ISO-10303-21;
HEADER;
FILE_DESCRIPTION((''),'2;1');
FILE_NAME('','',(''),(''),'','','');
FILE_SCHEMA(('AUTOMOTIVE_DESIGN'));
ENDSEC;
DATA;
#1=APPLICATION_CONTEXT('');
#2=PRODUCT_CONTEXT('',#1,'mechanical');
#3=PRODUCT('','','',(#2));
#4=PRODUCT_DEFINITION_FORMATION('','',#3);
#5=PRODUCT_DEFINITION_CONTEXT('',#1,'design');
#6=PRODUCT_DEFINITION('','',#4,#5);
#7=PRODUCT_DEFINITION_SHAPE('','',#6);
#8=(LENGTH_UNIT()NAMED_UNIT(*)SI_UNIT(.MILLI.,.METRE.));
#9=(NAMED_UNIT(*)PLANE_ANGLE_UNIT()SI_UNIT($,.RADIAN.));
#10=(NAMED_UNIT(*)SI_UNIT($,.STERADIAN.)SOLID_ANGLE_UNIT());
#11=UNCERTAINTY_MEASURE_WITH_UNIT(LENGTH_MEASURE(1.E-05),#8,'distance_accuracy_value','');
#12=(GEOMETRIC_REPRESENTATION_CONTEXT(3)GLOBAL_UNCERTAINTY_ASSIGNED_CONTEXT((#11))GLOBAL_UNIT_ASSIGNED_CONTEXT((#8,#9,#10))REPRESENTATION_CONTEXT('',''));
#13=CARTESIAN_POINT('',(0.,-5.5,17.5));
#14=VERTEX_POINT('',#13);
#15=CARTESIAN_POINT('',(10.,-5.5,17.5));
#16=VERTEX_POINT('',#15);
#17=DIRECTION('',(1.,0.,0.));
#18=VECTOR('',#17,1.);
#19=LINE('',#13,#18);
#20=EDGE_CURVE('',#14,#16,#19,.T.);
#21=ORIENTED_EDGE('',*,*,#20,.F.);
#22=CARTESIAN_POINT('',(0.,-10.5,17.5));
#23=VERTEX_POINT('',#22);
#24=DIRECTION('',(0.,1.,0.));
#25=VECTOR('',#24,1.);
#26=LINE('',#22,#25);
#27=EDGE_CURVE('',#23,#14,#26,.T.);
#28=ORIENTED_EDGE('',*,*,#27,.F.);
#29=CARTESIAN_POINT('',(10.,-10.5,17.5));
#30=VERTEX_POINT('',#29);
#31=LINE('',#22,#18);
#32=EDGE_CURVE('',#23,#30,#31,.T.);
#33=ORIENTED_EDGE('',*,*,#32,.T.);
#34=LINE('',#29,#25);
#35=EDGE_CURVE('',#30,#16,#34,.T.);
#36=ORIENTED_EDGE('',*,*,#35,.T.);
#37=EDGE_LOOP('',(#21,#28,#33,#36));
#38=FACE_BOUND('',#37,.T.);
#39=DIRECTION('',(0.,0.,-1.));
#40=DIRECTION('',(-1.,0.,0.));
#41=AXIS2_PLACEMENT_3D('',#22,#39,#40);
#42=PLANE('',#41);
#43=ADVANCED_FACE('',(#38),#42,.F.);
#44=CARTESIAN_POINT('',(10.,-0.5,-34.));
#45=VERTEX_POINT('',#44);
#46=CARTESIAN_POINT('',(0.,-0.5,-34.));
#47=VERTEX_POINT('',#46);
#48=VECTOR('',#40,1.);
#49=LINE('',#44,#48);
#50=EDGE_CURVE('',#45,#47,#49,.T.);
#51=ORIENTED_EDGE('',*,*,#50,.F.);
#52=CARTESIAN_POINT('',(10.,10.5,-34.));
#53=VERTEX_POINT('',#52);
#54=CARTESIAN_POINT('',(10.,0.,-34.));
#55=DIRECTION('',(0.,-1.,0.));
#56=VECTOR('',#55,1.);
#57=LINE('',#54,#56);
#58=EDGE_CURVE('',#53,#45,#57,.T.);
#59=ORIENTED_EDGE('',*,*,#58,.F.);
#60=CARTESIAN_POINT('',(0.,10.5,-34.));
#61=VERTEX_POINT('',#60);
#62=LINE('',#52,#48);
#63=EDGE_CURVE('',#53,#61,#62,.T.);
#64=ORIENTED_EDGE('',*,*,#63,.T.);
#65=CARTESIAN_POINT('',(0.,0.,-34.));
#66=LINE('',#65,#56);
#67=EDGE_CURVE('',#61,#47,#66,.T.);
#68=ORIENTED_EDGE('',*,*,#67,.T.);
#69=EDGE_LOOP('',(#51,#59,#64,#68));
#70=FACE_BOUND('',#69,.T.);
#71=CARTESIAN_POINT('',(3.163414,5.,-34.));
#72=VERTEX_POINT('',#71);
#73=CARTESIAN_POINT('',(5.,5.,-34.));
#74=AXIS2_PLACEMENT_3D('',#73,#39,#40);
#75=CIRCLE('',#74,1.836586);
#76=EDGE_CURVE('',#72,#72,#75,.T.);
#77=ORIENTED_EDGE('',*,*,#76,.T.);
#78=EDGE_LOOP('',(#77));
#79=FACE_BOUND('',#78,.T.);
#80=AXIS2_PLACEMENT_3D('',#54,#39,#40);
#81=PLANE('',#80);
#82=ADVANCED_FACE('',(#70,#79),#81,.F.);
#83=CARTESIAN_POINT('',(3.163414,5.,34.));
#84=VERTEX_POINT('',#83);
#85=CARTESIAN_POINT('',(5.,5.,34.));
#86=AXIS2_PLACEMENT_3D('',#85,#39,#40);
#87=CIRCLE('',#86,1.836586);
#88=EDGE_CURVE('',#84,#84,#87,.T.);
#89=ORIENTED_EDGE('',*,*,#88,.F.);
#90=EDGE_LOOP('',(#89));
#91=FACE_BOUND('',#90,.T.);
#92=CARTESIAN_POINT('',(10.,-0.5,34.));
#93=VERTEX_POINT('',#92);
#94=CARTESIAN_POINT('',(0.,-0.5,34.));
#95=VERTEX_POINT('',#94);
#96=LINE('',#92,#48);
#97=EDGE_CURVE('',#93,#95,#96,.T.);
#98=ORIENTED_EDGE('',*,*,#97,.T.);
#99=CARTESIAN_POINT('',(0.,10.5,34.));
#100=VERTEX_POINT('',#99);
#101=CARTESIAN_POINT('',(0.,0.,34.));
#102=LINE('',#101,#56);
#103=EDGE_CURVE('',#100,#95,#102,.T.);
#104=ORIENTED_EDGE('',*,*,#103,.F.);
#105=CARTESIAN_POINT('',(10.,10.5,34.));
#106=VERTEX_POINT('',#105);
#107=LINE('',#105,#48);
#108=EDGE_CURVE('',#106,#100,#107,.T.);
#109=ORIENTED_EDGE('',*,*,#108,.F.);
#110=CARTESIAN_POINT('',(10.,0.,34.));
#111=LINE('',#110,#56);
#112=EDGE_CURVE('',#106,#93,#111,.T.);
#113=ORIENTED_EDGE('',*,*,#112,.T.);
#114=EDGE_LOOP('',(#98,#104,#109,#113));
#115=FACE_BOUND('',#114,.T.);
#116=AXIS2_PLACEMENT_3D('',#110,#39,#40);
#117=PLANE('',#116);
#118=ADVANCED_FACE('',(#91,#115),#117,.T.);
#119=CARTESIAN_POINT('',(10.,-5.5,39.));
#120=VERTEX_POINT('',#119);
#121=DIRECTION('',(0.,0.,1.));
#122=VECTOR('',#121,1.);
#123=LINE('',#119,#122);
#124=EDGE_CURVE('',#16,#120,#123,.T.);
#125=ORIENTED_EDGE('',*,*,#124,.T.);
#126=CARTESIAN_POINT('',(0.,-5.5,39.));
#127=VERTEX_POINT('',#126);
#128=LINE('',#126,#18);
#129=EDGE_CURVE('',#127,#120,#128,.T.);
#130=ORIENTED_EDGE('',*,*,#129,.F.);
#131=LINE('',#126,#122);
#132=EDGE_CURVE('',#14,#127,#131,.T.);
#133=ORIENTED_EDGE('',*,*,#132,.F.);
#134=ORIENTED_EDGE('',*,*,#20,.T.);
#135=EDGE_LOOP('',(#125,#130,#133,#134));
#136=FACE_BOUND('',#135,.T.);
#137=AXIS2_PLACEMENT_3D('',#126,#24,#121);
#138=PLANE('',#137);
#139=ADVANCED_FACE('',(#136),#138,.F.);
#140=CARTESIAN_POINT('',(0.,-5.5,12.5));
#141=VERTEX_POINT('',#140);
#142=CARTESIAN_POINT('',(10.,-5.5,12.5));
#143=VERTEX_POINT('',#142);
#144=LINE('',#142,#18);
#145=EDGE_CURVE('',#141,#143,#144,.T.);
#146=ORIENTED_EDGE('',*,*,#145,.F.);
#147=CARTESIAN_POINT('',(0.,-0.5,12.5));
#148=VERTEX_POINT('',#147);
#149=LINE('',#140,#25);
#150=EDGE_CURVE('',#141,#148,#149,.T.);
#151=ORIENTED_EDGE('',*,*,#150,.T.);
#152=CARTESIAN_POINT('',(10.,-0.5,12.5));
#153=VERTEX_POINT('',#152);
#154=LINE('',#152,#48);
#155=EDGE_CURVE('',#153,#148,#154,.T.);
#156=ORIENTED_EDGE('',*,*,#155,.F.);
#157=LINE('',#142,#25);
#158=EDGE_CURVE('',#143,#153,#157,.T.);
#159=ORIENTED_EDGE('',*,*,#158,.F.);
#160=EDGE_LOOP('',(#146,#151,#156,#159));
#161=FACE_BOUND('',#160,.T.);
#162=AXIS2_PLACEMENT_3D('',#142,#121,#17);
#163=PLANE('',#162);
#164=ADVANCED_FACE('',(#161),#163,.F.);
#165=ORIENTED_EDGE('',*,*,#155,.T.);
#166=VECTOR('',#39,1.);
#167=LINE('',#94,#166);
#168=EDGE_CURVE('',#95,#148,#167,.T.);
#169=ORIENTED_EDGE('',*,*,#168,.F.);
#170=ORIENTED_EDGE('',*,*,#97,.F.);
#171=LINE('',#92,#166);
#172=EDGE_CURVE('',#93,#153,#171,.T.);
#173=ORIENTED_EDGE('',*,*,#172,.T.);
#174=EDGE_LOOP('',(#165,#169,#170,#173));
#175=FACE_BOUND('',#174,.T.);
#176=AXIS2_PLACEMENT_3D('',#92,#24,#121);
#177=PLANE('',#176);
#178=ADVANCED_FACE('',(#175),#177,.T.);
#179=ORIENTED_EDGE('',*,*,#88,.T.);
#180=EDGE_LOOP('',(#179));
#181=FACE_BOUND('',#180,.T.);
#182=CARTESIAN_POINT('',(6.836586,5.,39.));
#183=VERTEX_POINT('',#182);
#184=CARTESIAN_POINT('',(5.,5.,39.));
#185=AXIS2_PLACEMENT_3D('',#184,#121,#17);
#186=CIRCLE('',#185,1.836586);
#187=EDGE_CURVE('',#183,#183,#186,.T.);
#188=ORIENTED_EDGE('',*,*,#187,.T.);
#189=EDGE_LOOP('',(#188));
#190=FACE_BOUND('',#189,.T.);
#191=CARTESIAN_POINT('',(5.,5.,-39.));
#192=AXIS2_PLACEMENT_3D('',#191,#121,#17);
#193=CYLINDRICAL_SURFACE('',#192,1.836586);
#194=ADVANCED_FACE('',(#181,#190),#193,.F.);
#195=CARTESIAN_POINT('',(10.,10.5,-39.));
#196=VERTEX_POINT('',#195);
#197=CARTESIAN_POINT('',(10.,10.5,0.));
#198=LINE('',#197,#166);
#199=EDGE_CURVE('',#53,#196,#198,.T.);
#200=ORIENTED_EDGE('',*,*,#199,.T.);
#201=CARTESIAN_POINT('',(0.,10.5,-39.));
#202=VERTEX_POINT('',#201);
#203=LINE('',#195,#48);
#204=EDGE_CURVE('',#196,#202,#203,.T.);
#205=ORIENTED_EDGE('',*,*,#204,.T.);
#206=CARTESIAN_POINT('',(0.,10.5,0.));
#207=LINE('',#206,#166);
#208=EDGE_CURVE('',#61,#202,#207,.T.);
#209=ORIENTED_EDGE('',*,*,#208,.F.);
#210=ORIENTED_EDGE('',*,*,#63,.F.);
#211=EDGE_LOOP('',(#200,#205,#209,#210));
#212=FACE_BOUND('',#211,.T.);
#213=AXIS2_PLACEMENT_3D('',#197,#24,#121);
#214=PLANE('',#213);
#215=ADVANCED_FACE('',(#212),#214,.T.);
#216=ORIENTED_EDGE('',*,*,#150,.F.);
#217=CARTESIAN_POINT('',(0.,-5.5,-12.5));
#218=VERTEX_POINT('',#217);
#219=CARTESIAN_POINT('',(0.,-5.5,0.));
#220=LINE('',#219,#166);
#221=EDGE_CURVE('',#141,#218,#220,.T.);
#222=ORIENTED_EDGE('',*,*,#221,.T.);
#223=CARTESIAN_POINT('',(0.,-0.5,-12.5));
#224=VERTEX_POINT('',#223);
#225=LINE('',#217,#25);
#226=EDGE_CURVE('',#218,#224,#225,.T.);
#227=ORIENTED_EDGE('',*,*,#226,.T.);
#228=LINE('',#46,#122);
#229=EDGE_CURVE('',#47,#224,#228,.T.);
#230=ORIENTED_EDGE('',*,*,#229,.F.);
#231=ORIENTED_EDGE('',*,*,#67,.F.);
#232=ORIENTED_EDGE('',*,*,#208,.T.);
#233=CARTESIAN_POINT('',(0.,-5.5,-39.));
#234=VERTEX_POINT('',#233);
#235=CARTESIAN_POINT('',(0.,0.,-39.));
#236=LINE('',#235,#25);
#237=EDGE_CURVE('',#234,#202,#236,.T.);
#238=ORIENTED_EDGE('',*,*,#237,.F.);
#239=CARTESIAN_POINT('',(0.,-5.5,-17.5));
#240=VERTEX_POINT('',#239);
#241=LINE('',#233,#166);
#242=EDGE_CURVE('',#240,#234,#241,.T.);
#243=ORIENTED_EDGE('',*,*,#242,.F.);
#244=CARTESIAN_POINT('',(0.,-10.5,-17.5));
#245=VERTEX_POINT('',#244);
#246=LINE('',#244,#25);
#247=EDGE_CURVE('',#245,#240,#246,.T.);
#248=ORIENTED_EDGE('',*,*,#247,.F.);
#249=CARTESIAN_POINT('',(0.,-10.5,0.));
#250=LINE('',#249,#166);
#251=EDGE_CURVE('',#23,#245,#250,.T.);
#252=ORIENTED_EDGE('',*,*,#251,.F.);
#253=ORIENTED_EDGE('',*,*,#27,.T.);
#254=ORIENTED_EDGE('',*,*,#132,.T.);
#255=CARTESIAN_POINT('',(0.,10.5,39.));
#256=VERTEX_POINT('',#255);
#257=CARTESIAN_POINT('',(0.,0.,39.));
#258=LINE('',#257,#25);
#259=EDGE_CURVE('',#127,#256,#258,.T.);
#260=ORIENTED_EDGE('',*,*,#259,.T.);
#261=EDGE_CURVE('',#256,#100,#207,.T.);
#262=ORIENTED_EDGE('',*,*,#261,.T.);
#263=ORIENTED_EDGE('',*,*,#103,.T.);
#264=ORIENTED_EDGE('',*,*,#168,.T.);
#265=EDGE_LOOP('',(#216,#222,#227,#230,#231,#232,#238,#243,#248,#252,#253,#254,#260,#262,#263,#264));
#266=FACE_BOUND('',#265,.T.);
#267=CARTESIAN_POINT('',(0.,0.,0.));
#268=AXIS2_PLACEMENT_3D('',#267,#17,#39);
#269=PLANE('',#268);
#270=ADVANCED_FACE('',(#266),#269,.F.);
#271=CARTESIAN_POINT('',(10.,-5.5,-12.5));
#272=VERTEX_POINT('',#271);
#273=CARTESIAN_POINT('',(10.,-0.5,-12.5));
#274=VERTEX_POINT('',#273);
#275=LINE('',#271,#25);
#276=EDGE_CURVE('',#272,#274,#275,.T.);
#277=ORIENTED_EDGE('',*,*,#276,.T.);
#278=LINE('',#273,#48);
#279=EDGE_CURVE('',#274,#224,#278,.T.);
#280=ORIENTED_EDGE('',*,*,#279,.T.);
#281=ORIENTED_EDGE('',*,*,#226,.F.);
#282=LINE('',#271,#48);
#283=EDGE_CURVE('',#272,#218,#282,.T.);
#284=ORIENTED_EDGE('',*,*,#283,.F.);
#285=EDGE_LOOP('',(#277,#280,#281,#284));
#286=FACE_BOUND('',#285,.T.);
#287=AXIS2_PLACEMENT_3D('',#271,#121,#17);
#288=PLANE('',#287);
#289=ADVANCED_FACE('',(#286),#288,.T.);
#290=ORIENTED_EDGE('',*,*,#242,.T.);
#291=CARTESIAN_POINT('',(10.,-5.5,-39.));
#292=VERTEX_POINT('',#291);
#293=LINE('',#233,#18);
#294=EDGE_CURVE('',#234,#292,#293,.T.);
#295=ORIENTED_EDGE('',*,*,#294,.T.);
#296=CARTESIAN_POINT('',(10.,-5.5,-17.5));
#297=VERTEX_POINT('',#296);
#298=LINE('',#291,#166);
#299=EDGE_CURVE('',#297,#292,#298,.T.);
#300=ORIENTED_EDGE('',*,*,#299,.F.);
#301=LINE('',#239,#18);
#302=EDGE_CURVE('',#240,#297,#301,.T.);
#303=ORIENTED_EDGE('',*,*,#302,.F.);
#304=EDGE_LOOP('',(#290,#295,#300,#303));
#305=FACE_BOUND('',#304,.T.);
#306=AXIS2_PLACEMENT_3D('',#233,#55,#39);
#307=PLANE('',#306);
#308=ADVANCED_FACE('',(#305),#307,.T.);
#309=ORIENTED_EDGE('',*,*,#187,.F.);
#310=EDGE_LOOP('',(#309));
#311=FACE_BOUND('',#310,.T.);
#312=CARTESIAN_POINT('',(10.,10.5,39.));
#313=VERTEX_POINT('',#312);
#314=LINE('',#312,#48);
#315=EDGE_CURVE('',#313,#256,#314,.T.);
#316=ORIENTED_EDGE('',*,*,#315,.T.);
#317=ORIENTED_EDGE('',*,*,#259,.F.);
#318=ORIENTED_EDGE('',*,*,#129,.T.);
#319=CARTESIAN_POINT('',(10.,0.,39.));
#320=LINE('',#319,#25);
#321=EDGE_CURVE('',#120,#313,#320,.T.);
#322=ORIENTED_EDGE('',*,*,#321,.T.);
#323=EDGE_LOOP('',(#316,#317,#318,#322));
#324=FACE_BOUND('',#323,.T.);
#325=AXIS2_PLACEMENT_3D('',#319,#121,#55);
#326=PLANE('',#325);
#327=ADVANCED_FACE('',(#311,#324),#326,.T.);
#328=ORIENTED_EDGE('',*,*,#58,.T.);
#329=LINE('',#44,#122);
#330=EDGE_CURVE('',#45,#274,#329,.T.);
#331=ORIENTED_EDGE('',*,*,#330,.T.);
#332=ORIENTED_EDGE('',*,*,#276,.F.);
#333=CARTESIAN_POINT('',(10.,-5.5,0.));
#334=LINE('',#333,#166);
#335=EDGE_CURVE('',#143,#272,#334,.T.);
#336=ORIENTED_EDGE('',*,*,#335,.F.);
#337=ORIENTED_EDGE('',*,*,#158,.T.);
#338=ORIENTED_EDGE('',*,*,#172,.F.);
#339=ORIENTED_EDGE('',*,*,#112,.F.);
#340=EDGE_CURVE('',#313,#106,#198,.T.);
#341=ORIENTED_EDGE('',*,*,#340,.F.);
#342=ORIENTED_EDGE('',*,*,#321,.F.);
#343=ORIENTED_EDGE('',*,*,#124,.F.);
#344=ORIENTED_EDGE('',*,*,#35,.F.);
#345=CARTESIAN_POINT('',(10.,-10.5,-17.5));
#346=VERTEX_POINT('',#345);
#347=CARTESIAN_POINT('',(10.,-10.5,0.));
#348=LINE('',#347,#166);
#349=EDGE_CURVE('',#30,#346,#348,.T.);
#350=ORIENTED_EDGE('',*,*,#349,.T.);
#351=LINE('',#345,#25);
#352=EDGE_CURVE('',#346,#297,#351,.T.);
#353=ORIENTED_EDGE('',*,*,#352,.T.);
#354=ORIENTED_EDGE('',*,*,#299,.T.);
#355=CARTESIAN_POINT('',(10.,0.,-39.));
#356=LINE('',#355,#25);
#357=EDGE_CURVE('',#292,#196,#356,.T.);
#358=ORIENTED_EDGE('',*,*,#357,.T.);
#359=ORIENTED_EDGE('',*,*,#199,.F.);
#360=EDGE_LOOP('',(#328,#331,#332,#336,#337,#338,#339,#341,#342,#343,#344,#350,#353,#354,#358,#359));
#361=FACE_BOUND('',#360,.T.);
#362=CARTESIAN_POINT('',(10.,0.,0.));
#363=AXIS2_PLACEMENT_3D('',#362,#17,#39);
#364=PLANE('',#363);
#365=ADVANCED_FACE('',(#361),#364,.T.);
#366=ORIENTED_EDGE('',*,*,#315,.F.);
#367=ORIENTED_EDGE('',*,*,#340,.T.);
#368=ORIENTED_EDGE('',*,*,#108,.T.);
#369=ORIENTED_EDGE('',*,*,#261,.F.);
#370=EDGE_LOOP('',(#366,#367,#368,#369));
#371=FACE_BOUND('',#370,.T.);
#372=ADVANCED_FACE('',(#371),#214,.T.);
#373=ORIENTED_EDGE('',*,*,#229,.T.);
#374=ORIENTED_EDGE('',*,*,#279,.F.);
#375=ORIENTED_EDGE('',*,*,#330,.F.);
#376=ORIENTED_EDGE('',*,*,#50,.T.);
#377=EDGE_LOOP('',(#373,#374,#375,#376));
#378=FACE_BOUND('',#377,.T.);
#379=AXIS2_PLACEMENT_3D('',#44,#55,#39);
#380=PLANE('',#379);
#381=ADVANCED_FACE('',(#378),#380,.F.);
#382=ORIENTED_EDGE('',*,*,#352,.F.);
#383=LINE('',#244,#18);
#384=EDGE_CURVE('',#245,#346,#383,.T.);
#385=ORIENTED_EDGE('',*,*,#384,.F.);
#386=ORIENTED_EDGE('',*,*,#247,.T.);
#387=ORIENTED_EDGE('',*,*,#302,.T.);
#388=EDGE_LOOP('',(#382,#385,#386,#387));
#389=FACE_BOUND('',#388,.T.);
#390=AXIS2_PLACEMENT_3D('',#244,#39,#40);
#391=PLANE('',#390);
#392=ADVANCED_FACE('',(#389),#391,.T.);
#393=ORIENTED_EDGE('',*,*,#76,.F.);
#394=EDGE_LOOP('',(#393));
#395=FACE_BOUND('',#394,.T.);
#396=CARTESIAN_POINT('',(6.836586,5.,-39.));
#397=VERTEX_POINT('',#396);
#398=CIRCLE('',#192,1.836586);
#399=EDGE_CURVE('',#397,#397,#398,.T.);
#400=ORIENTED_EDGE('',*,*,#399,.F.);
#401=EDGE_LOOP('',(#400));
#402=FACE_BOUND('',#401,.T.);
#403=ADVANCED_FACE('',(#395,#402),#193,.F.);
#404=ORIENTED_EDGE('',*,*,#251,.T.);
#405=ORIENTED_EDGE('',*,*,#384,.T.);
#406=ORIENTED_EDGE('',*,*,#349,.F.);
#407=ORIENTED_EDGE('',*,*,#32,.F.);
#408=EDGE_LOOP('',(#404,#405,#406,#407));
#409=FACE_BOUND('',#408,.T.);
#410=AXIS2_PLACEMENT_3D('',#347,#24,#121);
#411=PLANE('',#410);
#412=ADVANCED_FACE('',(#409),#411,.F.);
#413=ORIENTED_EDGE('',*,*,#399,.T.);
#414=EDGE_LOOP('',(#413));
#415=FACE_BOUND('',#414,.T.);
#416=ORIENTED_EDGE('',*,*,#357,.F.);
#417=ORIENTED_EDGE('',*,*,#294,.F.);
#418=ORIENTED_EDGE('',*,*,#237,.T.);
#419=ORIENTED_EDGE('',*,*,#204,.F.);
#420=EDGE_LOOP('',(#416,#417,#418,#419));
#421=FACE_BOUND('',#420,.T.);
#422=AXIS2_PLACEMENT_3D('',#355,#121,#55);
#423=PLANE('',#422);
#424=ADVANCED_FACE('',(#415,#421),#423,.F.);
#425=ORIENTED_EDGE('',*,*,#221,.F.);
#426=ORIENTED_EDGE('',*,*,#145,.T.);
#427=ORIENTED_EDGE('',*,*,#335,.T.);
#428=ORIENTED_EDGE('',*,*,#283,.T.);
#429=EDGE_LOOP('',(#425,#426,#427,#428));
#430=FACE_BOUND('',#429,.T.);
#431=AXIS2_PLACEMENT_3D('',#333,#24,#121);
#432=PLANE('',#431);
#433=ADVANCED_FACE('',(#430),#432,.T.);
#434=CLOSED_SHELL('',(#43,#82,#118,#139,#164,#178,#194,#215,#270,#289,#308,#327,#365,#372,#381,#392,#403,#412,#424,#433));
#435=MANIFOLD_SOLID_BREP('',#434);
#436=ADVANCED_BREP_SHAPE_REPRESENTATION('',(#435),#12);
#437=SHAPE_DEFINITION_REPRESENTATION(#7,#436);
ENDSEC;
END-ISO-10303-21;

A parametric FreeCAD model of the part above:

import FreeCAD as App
import Part
import Sketcher
from FreeCAD import Vector
Q = App.Units.Quantity

doc = App.newDocument("Part")
params = doc.addObject("Spreadsheet::Sheet", "Params")
for row, (alias, value) in enumerate([
    ("sketch1_width", "21 mm"),
    ("sketch1_width2", "11 mm"),
    ("sketch1_width3", "5 mm"),
    ("sketch1_height", "78 mm"),
    ("sketch1_height2", "25 mm"),
    ("pad1_length", "10 mm"),
    ("sketch3_width", "5 mm"),
    ("sketch3_height", "21.5 mm"),
    ("pocket2_length", "10 mm"),
], start=1):
    params.set(f"A{row}", alias)
    params.set(f"B{row}", "=" + value)
    params.setAlias(f"B{row}", alias)

body = doc.addObject("PartDesign::Body", "Body")

# Sketch on YZ plane
sketch1 = body.newObject("Sketcher::SketchObject", "Sketch")
sketch1.AttachmentSupport = (doc.getObject("YZ_Plane"), [""])
sketch1.MapMode = "FlatFace"
sketch1.addGeometry([
    Part.LineSegment(Vector(10, 39, 0), Vector(-10, 39, 0)),  # 0
    Part.LineSegment(Vector(-10, 39, 0), Vector(-10, -39, 0)),  # 1
    Part.LineSegment(Vector(-10, -39, 0), Vector(10, -39, 0)),  # 2
    Part.LineSegment(Vector(10, -39, 0), Vector(10, -34, 0)),  # 3
    Part.LineSegment(Vector(10, -34, 0), Vector(0, -34, 0)),  # 4
    Part.LineSegment(Vector(0, -34, 0), Vector(0, -12, 0)),  # 5
    Part.LineSegment(Vector(0, -12, 0), Vector(-6, -12, 0)),  # 6
    Part.LineSegment(Vector(-6, -12, 0), Vector(-6, 12, 0)),  # 7
    Part.LineSegment(Vector(-6, 12, 0), Vector(0, 12, 0)),  # 8
    Part.LineSegment(Vector(0, 12, 0), Vector(0, 34, 0)),  # 9
    Part.LineSegment(Vector(0, 34, 0), Vector(10, 34, 0)),  # 10
    Part.LineSegment(Vector(10, 34, 0), Vector(10, 39, 0)),  # 11
], False)
sketch1.addConstraint([
    Sketcher.Constraint("Coincident", 0, 2, 1, 1),
    Sketcher.Constraint("Coincident", 1, 2, 2, 1),
    Sketcher.Constraint("Coincident", 2, 2, 3, 1),
    Sketcher.Constraint("Coincident", 3, 2, 4, 1),
    Sketcher.Constraint("Coincident", 4, 2, 5, 1),
    Sketcher.Constraint("Coincident", 5, 2, 6, 1),
    Sketcher.Constraint("Coincident", 6, 2, 7, 1),
    Sketcher.Constraint("Coincident", 7, 2, 8, 1),
    Sketcher.Constraint("Coincident", 8, 2, 9, 1),
    Sketcher.Constraint("Coincident", 9, 2, 10, 1),
    Sketcher.Constraint("Coincident", 10, 2, 11, 1),
    Sketcher.Constraint("Coincident", 11, 2, 0, 1),
    Sketcher.Constraint("Horizontal", 0),
    Sketcher.Constraint("Vertical", 1),
    Sketcher.Constraint("Horizontal", 2),
    Sketcher.Constraint("Vertical", 3),
    Sketcher.Constraint("Horizontal", 4),
    Sketcher.Constraint("Vertical", 5),
    Sketcher.Constraint("Horizontal", 6),
    Sketcher.Constraint("Vertical", 7),
    Sketcher.Constraint("Horizontal", 8),
    Sketcher.Constraint("Vertical", 9),
    Sketcher.Constraint("Horizontal", 10),
    Sketcher.Constraint("Vertical", 11),
    Sketcher.Constraint("Symmetric", 0, 2, 2, 2, -1, 1),
    Sketcher.Constraint("Symmetric", 5, 2, 8, 2, -1),
    Sketcher.Constraint("Symmetric", 3, 2, 10, 2, -1),
    Sketcher.Constraint("Equal", 8, 3),
    Sketcher.Constraint("DistanceX", 0, 2, 0, 1, Q("21 mm")),
    Sketcher.Constraint("DistanceX", 4, 2, 4, 1, Q("11 mm")),
    Sketcher.Constraint("DistanceX", 6, 2, 6, 1, Q("5 mm")),
    Sketcher.Constraint("DistanceY", 1, 2, 1, 1, Q("78 mm")),
    Sketcher.Constraint("DistanceY", 7, 1, 7, 2, Q("25 mm")),
])
sketch1.setExpression("Constraints[28]", "Params.sketch1_width")
sketch1.setExpression("Constraints[29]", "Params.sketch1_width2")
sketch1.setExpression("Constraints[30]", "Params.sketch1_width3")
sketch1.setExpression("Constraints[31]", "Params.sketch1_height")
sketch1.setExpression("Constraints[32]", "Params.sketch1_height2")
pad1 = body.newObject("PartDesign::Pad", "Pad")
pad1.Profile = sketch1
pad1.setExpression("Length", "Params.pad1_length")

# Sketch on XY plane
sketch2 = body.newObject("Sketcher::SketchObject", "Sketch001")
sketch2.AttachmentSupport = (doc.getObject("XY_Plane"), [""])
sketch2.MapMode = "FlatFace"
sketch2.AttachmentOffset = App.Placement(Vector(0, 0, -34), App.Rotation())
sketch2.addGeometry(Part.Circle(Vector(5, 5, 0), Vector(0, 0, 1), 1.8), False)
sketch2.addConstraint([
    Sketcher.Constraint("DistanceX", -1, 1, 0, 3, Q("5 mm")),
    Sketcher.Constraint("DistanceY", -1, 1, 0, 3, Q("5 mm")),
    Sketcher.Constraint("Diameter", 0, Q("3.673172 mm")),
])
pocket1 = body.newObject("PartDesign::Pocket", "Pocket")
pocket1.Profile = sketch2
pocket1.Type = "ThroughAll"
pocket1.Midplane = True

# Sketch on YZ plane
sketch3 = body.newObject("Sketcher::SketchObject", "Sketch002")
sketch3.AttachmentSupport = (doc.getObject("YZ_Plane"), [""])
sketch3.MapMode = "FlatFace"
sketch3.AttachmentOffset = App.Placement(Vector(0, 0, 10), App.Rotation())
sketch3.addGeometry([
    Part.LineSegment(Vector(-6, 39, 0), Vector(-10, 39, 0)),
    Part.LineSegment(Vector(-10, 39, 0), Vector(-10, 18, 0)),
    Part.LineSegment(Vector(-10, 18, 0), Vector(-6, 18, 0)),
    Part.LineSegment(Vector(-6, 18, 0), Vector(-6, 39, 0)),
], False)
sketch3.addConstraint([
    Sketcher.Constraint("Coincident", 0, 2, 1, 1),
    Sketcher.Constraint("Coincident", 1, 2, 2, 1),
    Sketcher.Constraint("Coincident", 2, 2, 3, 1),
    Sketcher.Constraint("Coincident", 3, 2, 0, 1),
    Sketcher.Constraint("Horizontal", 0),
    Sketcher.Constraint("Vertical", 1),
    Sketcher.Constraint("Horizontal", 2),
    Sketcher.Constraint("Vertical", 3),
    Sketcher.Constraint("DistanceX", 0, 2, 0, 1, Q("5 mm")),
    Sketcher.Constraint("DistanceY", 1, 2, 1, 1, Q("21.5 mm")),
    Sketcher.Constraint("DistanceY", -1, 1, 0, 2, Q("39 mm")),
    Sketcher.Constraint("DistanceX", 0, 2, -1, 1, Q("10.5 mm")),
])
sketch3.setExpression("Constraints[8]", "Params.sketch3_width")
sketch3.setExpression("Constraints[9]", "Params.sketch3_height")
pocket2 = body.newObject("PartDesign::Pocket", "Pocket001")
pocket2.Profile = sketch3
pocket2.setExpression("Length", "Params.pocket2_length")
doc.recompute()

mirrored = body.newObject("PartDesign::Mirrored", "Mirrored")
mirrored.Originals = [pocket2]
mirrored.MirrorPlane = (doc.getObject("XY_Plane"), [""])
body.Tip = mirrored

doc.recompute()
